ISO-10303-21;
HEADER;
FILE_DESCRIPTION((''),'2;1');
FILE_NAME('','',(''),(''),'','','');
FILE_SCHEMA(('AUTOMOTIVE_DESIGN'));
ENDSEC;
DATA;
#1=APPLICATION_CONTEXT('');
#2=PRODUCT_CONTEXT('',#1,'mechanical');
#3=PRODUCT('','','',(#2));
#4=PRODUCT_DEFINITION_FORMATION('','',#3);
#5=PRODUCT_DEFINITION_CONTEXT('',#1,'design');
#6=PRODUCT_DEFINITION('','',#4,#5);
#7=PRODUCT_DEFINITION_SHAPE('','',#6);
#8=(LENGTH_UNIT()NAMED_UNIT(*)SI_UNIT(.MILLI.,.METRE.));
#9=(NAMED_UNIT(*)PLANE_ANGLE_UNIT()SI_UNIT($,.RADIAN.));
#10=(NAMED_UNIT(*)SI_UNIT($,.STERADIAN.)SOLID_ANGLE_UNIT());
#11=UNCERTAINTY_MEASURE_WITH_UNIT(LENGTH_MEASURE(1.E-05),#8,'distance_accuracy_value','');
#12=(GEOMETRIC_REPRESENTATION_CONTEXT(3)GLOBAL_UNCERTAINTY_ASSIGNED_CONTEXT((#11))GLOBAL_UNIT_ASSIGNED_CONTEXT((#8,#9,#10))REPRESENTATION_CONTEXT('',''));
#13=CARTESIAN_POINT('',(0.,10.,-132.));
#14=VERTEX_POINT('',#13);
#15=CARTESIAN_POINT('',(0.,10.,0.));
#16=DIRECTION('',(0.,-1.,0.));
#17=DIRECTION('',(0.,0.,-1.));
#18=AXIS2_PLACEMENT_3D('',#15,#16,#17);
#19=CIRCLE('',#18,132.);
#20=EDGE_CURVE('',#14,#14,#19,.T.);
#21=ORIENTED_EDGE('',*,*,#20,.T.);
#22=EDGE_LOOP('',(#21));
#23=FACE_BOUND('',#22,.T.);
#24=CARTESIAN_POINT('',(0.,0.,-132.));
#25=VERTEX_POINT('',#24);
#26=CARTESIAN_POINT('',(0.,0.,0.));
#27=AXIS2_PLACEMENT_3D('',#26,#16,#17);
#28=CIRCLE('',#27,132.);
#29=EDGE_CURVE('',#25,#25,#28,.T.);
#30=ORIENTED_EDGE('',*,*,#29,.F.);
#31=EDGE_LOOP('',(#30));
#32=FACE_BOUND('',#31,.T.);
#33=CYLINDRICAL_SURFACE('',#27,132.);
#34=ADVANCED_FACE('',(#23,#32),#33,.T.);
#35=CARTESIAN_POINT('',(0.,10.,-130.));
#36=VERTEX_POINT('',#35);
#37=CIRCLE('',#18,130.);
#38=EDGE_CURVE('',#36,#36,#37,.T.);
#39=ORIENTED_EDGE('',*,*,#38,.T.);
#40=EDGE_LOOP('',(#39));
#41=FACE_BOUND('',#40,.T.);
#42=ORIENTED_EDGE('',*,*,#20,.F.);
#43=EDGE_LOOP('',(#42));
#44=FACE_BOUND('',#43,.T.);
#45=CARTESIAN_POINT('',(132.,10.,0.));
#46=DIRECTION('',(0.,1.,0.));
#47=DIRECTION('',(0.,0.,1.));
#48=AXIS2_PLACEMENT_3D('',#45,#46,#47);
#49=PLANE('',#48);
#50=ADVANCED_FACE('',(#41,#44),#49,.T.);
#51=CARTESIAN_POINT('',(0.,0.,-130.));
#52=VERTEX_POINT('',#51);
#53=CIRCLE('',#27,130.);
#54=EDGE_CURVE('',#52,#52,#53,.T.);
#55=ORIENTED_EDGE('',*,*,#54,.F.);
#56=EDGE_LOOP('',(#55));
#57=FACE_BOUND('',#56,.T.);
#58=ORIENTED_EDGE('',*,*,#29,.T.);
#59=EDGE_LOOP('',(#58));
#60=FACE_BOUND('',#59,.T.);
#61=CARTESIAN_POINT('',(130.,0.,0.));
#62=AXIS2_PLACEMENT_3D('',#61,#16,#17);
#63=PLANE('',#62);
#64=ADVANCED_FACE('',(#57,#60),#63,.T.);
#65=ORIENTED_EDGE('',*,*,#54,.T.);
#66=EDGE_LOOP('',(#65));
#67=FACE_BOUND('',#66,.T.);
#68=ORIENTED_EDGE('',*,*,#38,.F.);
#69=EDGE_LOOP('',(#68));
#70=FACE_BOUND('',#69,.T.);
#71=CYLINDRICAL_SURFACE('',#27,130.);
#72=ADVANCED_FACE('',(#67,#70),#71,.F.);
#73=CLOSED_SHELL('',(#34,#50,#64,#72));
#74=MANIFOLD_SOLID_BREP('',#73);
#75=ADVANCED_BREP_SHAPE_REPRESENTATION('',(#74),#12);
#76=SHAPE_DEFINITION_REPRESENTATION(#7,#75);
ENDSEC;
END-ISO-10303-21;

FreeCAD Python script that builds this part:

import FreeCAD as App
import Part
import Sketcher
from FreeCAD import Vector

doc = App.newDocument("Part")
body = doc.addObject("PartDesign::Body", "Body")

sketch1 = body.newObject("Sketcher::SketchObject", "Sketch")
sketch1.AttachmentSupport = (doc.getObject("XY_Plane"), [""])
sketch1.MapMode = "FlatFace"
sketch1.addGeometry(Part.LineSegment(Vector(130, 10, 0), Vector(130, 0, 0)), False)
sketch1.addGeometry(Part.LineSegment(Vector(130, 0, 0), Vector(132, 0, 0)), False)
sketch1.addGeometry(Part.LineSegment(Vector(132, 0, 0), Vector(132, 10, 0)), False)
sketch1.addGeometry(Part.LineSegment(Vector(132, 10, 0), Vector(130, 10, 0)), False)
sketch1.addConstraint(Sketcher.Constraint("Coincident", 0, 2, 1, 1))
sketch1.addConstraint(Sketcher.Constraint("Coincident", 1, 2, 2, 1))
sketch1.addConstraint(Sketcher.Constraint("Coincident", 2, 2, 3, 1))
sketch1.addConstraint(Sketcher.Constraint("Coincident", 3, 2, 0, 1))
sketch1.addConstraint(Sketcher.Constraint("Vertical", 0))
sketch1.addConstraint(Sketcher.Constraint("Horizontal", 1))
sketch1.addConstraint(Sketcher.Constraint("Vertical", 2))
sketch1.addConstraint(Sketcher.Constraint("Horizontal", 3))
sketch1.addConstraint(Sketcher.Constraint("PointOnObject", 0, 2, -1))
sketch1.addConstraint(Sketcher.Constraint("DistanceX", 1, 1, 1, 2, 2.0))
sketch1.addConstraint(Sketcher.Constraint("DistanceY", 0, 2, 0, 1, 10.0))
sketch1.addConstraint(Sketcher.Constraint("DistanceX", -1, 1, 0, 2, 130.0))
revolution = body.newObject("PartDesign::Revolution", "Revolution")
revolution.Profile = sketch1
revolution.ReferenceAxis = (sketch1, ["V_Axis"])
revolution.Angle = 360

doc.recompute()
